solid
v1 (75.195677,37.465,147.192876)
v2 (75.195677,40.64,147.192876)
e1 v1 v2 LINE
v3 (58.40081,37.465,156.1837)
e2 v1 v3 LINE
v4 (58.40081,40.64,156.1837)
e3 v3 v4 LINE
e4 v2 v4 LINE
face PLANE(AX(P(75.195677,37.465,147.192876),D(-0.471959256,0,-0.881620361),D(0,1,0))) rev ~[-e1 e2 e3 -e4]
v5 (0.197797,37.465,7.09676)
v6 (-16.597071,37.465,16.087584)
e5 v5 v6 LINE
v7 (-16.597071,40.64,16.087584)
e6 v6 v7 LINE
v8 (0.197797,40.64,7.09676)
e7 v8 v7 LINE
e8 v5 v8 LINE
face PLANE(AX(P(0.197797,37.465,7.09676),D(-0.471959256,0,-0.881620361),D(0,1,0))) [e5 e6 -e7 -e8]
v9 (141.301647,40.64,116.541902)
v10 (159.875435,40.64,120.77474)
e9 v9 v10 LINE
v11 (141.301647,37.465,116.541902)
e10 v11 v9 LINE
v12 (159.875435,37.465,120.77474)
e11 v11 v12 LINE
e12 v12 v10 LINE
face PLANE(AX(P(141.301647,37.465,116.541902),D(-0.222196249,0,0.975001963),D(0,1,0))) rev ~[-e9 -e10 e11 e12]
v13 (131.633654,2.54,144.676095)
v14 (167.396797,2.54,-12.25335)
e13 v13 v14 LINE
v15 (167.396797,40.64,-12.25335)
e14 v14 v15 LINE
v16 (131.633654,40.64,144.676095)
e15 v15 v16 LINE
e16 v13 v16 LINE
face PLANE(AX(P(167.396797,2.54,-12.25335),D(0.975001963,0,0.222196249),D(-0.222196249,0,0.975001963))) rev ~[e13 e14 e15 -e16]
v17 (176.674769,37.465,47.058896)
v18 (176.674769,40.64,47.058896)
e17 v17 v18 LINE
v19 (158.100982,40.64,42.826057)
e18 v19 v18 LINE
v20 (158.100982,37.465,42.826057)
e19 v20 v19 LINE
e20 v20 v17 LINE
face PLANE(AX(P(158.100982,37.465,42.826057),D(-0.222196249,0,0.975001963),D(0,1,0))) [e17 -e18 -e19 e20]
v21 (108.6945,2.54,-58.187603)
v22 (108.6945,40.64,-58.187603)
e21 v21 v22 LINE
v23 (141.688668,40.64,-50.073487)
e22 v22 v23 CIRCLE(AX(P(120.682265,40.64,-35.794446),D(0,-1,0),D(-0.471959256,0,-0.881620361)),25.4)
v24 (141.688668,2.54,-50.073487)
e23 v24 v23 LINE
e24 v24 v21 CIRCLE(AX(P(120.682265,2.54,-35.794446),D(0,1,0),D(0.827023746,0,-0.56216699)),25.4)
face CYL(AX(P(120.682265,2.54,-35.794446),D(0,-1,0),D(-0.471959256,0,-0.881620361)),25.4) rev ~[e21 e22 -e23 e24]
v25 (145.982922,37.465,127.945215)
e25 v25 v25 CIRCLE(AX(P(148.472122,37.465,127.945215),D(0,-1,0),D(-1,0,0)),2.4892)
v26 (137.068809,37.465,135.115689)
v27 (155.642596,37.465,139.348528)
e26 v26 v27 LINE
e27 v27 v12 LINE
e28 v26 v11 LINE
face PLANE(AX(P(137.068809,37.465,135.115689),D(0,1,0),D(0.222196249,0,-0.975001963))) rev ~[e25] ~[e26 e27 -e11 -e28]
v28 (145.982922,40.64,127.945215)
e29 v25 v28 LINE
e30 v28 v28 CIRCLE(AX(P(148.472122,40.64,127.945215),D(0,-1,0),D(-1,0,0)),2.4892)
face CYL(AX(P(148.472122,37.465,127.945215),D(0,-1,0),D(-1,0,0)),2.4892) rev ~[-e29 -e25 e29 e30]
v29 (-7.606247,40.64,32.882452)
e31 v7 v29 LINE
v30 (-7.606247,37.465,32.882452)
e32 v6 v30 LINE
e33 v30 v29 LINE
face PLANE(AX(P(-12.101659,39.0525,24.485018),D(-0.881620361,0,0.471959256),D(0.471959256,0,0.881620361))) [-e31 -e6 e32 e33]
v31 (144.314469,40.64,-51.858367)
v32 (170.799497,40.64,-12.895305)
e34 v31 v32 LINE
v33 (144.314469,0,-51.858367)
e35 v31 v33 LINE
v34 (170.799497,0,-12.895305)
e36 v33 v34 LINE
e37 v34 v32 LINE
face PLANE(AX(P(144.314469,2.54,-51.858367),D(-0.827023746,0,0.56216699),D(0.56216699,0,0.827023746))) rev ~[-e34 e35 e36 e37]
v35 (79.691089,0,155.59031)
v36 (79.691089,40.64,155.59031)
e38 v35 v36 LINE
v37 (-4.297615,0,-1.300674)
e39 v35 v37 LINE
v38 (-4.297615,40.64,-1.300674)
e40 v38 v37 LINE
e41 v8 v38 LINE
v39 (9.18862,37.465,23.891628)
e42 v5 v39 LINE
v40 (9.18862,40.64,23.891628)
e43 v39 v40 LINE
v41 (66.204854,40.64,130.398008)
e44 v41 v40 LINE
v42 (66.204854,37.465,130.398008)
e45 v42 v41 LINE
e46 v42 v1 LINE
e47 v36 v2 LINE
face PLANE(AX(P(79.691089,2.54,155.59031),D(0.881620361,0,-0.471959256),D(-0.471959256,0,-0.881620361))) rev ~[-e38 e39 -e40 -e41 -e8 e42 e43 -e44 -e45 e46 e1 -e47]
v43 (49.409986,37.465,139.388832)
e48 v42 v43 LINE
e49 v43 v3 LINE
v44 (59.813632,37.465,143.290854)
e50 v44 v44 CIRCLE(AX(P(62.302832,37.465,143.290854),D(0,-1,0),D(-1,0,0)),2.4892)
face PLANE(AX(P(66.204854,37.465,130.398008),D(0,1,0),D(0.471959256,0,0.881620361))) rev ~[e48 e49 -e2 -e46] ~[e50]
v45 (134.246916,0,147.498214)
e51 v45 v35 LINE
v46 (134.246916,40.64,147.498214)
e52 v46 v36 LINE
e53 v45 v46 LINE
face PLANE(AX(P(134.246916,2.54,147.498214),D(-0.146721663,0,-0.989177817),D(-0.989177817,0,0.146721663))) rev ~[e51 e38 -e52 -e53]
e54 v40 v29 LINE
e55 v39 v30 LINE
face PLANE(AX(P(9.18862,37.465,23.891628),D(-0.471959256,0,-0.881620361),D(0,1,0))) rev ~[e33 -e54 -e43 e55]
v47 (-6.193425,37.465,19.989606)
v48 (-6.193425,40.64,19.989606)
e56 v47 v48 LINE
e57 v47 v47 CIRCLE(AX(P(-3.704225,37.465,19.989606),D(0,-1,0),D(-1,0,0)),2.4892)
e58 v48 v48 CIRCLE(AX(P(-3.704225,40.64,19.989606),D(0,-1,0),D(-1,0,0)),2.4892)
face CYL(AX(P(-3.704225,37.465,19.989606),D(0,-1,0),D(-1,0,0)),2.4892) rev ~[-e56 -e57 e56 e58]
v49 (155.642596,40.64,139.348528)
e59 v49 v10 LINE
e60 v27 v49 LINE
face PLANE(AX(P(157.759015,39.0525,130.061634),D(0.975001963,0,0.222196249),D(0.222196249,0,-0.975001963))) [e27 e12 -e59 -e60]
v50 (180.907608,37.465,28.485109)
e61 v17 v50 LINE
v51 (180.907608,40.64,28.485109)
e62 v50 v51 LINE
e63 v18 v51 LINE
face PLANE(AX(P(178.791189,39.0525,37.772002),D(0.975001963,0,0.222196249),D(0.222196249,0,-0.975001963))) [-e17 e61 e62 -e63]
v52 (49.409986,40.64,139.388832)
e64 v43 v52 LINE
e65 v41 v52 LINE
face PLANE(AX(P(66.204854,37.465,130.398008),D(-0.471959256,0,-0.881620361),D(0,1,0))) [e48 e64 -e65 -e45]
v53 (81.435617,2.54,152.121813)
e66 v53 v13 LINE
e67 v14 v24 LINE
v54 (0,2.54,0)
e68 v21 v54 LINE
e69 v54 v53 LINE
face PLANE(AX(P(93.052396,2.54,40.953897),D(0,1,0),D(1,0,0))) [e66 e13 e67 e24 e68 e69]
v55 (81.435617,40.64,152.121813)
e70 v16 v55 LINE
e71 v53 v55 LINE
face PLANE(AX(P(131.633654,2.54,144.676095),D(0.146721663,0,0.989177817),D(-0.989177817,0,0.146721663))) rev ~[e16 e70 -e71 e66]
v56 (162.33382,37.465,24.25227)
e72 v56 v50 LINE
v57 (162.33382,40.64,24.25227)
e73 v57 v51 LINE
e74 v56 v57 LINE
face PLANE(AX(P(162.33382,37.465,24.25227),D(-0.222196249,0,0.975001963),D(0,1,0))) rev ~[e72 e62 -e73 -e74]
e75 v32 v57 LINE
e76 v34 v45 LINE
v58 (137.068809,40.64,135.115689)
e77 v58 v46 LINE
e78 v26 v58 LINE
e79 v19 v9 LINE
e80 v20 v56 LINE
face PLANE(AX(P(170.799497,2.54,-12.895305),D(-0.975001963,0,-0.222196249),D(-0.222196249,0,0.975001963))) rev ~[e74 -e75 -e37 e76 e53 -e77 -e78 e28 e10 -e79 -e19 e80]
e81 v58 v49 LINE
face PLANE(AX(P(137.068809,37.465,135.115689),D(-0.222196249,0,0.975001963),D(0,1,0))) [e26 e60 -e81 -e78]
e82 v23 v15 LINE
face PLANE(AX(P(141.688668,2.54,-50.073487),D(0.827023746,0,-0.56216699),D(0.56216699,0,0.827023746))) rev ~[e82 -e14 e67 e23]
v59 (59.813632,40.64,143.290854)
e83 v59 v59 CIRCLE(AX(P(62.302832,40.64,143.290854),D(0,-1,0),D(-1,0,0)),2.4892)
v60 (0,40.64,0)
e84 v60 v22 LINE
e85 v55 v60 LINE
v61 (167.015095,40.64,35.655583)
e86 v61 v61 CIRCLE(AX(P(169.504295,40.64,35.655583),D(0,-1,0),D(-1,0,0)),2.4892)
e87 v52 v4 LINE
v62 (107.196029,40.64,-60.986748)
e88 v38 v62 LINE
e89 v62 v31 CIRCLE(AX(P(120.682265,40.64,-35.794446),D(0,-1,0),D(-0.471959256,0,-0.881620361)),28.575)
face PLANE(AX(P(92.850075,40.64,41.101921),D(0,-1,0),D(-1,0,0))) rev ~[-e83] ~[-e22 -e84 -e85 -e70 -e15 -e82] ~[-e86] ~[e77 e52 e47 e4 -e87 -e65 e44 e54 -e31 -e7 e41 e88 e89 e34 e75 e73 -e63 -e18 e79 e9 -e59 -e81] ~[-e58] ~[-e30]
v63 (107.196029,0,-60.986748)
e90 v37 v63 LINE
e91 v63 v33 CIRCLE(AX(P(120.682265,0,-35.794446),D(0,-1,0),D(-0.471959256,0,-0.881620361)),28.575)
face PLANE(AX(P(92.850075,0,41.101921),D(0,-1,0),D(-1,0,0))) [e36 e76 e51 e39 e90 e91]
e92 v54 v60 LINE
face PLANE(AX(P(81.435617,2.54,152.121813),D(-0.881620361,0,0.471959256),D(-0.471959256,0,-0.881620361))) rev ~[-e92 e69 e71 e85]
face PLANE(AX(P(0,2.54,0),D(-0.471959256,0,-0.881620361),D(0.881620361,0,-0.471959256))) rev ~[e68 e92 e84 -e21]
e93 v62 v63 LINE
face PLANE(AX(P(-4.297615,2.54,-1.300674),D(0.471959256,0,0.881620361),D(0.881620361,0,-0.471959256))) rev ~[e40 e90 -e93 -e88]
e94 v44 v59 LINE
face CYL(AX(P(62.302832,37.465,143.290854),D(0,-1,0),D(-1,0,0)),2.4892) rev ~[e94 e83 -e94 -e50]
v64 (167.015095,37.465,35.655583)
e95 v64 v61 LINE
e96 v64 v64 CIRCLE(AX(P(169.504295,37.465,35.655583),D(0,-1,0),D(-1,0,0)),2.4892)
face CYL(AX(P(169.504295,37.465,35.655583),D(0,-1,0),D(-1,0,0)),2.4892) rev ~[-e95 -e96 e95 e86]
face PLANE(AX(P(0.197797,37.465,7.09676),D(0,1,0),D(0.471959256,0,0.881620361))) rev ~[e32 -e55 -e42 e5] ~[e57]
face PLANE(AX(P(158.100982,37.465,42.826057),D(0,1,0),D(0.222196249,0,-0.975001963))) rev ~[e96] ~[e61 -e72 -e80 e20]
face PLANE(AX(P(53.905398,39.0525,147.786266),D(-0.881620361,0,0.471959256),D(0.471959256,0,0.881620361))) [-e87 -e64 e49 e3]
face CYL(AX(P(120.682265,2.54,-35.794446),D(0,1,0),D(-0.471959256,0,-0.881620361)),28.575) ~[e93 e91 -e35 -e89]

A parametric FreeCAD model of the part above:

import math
import FreeCAD as App
import Part
import Sketcher
Q = App.Units.Quantity


def add_polygon(sketch, points):
    """Adds a closed chain of lines whose ends are joined by coincident constraints."""
    first, n = sketch.GeometryCount, len(points)
    for a, b in zip(points, points[1:] + points[:1]):
        sketch.addGeometry(Part.LineSegment(App.Vector(*a, 0), App.Vector(*b, 0)), False)
    for i in range(n):
        sketch.addConstraint(Sketcher.Constraint("Coincident", first + i, 2, first + (i + 1) % n, 1))

doc = App.newDocument("Part")
body = doc.addObject("PartDesign::Body", "Body")

sketch1 = doc.addObject("Sketcher::SketchObject", "Sketch")
body.addObject(sketch1)
sketch1.AttachmentSupport = (doc.XZ_Plane, [""])
sketch1.MapMode = "FlatFace"
sketch1.addGeometry([
    Part.LineSegment(App.Vector(108.6945, -58.187603, 0), App.Vector(0, 0, 0)),
    Part.LineSegment(App.Vector(0, 0, 0), App.Vector(81.435617, 152.121813, 0)),
    Part.LineSegment(App.Vector(81.435617, 152.121813, 0), App.Vector(131.633654, 144.676095, 0)),
    Part.LineSegment(App.Vector(131.633654, 144.676095, 0), App.Vector(167.396797, -12.25335, 0)),
    Part.LineSegment(App.Vector(167.396797, -12.25335, 0), App.Vector(141.688668, -50.073487, 0)),
    Part.ArcOfCircle(Part.Circle(App.Vector(120.682265, -35.794446, 0), App.Vector(0, 0, 1), 25.4), math.radians(-118.161551), math.radians(-34.205792)),
], False)
sketch1.addConstraint([
    Sketcher.Constraint("Coincident", 0, 2, 1, 1),
    Sketcher.Constraint("Coincident", 1, 2, 2, 1),
    Sketcher.Constraint("Coincident", 2, 2, 3, 1),
    Sketcher.Constraint("Coincident", 3, 2, 4, 1),
    Sketcher.Constraint("Tangent", 4, 2, 5, 2),
    Sketcher.Constraint("Tangent", 5, 1, 0, 1),
    Sketcher.Constraint("Coincident", 0, 2, -1, 1),
    Sketcher.Constraint("Perpendicular", 0, 1),
    Sketcher.Constraint("Radius", 5, Q("1 in")),
    Sketcher.Constraint("DistanceX", -1, 1, 5, 1, 108.6945),
    Sketcher.Constraint("DistanceY", 4, 2, 1, 2, 202.195301),
    Sketcher.Constraint("Distance", 1, 172.547981),
    Sketcher.Constraint("DistanceY", 3, 2, -1, 1, 12.25335),
    Sketcher.Constraint("DistanceX", -1, 1, 4, 2, 141.688668),
    Sketcher.Constraint("DistanceY", 2, 2, 1, 2, 7.445718),
    Sketcher.Constraint("DistanceX", 5, 3, 2, 2, 10.951389),
])
pad1 = doc.addObject("PartDesign::Pad", "Pad")
body.addObject(pad1)
pad1.Profile = sketch1
pad1.Length = Q("0.1 in")
pad1.Reversed = True

sketch2 = doc.addObject("Sketcher::SketchObject", "Sketch001")
body.addObject(sketch2)
sketch2.AttachmentSupport = (doc.XZ_Plane, [""])
sketch2.MapMode = "FlatFace"
sketch2.AttachmentOffset = App.Placement(App.Vector(0, 0, -0.1 * 25.4), App.Rotation())
sketch2.addGeometry([
    Part.LineSegment(App.Vector(-4.297615, -1.300674, 0), App.Vector(79.691089, 155.59031, 0)),
    Part.LineSegment(App.Vector(79.691089, 155.59031, 0), App.Vector(134.246916, 147.498214, 0)),
    Part.LineSegment(App.Vector(134.246916, 147.498214, 0), App.Vector(170.799497, -12.895305, 0)),
    Part.LineSegment(App.Vector(170.799497, -12.895305, 0), App.Vector(144.314469, -51.858367, 0)),
    Part.ArcOfCircle(Part.Circle(App.Vector(120.682265, -35.794446, 0), App.Vector(0, 0, 1), 28.575), math.radians(-118.161551), math.radians(-34.205792)),
    Part.LineSegment(App.Vector(107.196029, -60.986748, 0), App.Vector(-4.297615, -1.300674, 0)),
    Part.LineSegment(App.Vector(81.435617, 152.121813, 0), App.Vector(0, 0, 0)),
    Part.LineSegment(App.Vector(0, 0, 0), App.Vector(108.6945, -58.187603, 0)),
    Part.ArcOfCircle(Part.Circle(App.Vector(120.682265, -35.794446, 0), App.Vector(0, 0, 1), 25.4), math.radians(-118.161551), math.radians(-34.205792)),
    Part.LineSegment(App.Vector(141.688668, -50.073487, 0), App.Vector(167.396797, -12.25335, 0)),
    Part.LineSegment(App.Vector(167.396797, -12.25335, 0), App.Vector(131.633654, 144.676095, 0)),
    Part.LineSegment(App.Vector(131.633654, 144.676095, 0), App.Vector(81.435617, 152.121813, 0)),
], False)
sketch2.addConstraint([
    Sketcher.Constraint("Coincident", 0, 2, 1, 1),
    Sketcher.Constraint("Coincident", 1, 2, 2, 1),
    Sketcher.Constraint("Coincident", 2, 2, 3, 1),
    Sketcher.Constraint("Tangent", 3, 2, 4, 2),
    Sketcher.Constraint("Tangent", 4, 1, 5, 1),
    Sketcher.Constraint("Coincident", 5, 2, 0, 1),
    Sketcher.Constraint("Coincident", 6, 2, 7, 1),
    Sketcher.Constraint("Tangent", 7, 2, 8, 1),
    Sketcher.Constraint("Tangent", 8, 2, 9, 1),
    Sketcher.Constraint("Coincident", 9, 2, 10, 1),
    Sketcher.Constraint("Coincident", 10, 2, 11, 1),
    Sketcher.Constraint("Coincident", 11, 2, 6, 1),
    Sketcher.Constraint("Coincident", 6, 2, -1, 1),
    Sketcher.Constraint("Coincident", 8, 3, 4, 3),
    Sketcher.Constraint("Perpendicular", 0, 5),
    Sketcher.Constraint("Perpendicular", 5, 6),
    Sketcher.Constraint("Perpendicular", 6, 7),
    Sketcher.Constraint("Parallel", 3, 9),
    Sketcher.Constraint("Parallel", 2, 10),
    Sketcher.Constraint("Parallel", 1, 11),
    Sketcher.Constraint("Radius", 8, Q("1 in")),
    Sketcher.Constraint("Radius", 4, Q("1.125 in")),
    Sketcher.Constraint("Distance", 1, 55.1527),
    Sketcher.Constraint("DistanceX", -1, 1, 7, 2, 108.6945),
    Sketcher.Constraint("DistanceY", 4, 1, 4, 3, 25.192302),
    Sketcher.Constraint("DistanceY", 7, 2, 2, 2, 45.292298),
    Sketcher.Constraint("DistanceX", 9, 2, 2, 2, 3.402701),
    Sketcher.Constraint("DistanceY", 2, 2, 10, 2, 157.5714),
    Sketcher.Constraint("DistanceX", 11, 2, 1, 2, 52.8113),
    Sketcher.Constraint("DistanceY", 1, 2, 11, 2, 4.623599),
    Sketcher.Constraint("Distance", 6, 172.547981),
    Sketcher.Constraint("DistanceY", -1, 1, 0, 2, 155.59031),
])
pad2 = doc.addObject("PartDesign::Pad", "Pad001")
body.addObject(pad2)
pad2.Profile = sketch2
pad2.Type = "TwoLengths"
pad2.Length = Q("1.5 in")
pad2.Length2 = Q("0.1 in")
pad2.Reversed = True

sketch3 = doc.addObject("Sketcher::SketchObject", "Sketch002")
body.addObject(sketch3)
sketch3.Placement = App.Placement(App.Vector(159.573264, 0, 36.365651), App.Rotation(App.Vector(0.222196249, 0, -0.975001963), App.Vector(0, 1.000000001, 0), App.Vector(0.975001963, 0, 0.222196249), "ZXY"))
add_polygon(sketch3, [(-6.626045, 40.64), (-6.626045, 37.465), (12.423955, 37.465), (12.423955, 40.64)])
add_polygon(sketch3, [(-101.281887, 40.64), (-101.281887, 37.465), (-82.231887, 37.465), (-82.231887, 40.64)])
sketch3.addConstraint([
    Sketcher.Constraint("Vertical", 0),
    Sketcher.Constraint("Horizontal", 1),
    Sketcher.Constraint("Vertical", 2),
    Sketcher.Constraint("Horizontal", 3),
    Sketcher.Constraint("Vertical", 4),
    Sketcher.Constraint("Horizontal", 5),
    Sketcher.Constraint("Vertical", 6),
    Sketcher.Constraint("Horizontal", 7),
    Sketcher.Constraint("Horizontal", 1, 2, 4, 2),
    Sketcher.Constraint("Horizontal", 3, 2, 6, 2),
    Sketcher.Constraint("Equal", 3, 5),
    Sketcher.Constraint("DistanceX", 1, 1, 1, 2, Q("0.75 in")),
    Sketcher.Constraint("DistanceY", -1, 1, 2, 2, Q("1.6 in")),
    Sketcher.Constraint("DistanceY", 0, 2, 0, 1, Q("0.125 in")),
    Sketcher.Constraint("DistanceX", 0, 2, -1, 1, 6.626045),
    Sketcher.Constraint("DistanceX", 4, 2, -1, 1, 101.281887),
])
pad3 = doc.addObject("PartDesign::Pad", "Pad002")
body.addObject(pad3)
pad3.Profile = sketch3
pad3.Length = Q("0.75 in")

sketch4 = doc.addObject("Sketcher::SketchObject", "Sketch003")
body.addObject(sketch4)
sketch4.Placement = App.Placement(App.Vector(-2.799145, 0, 1.498471), App.Rotation(App.Vector(0.471959256, 0, 0.881620361), App.Vector(0, 1, 0), App.Vector(-0.881620361, 0, 0.471959256), "ZXY"))
add_polygon(sketch4, [(6.35, 40.64), (6.35, 37.465), (25.4, 37.465), (25.4, 40.64)])
add_polygon(sketch4, [(146.207533, 40.64), (146.207533, 37.465), (165.257533, 37.465), (165.257533, 40.64)])
sketch4.addConstraint([
    Sketcher.Constraint("Vertical", 0),
    Sketcher.Constraint("Horizontal", 1),
    Sketcher.Constraint("Vertical", 2),
    Sketcher.Constraint("Horizontal", 3),
    Sketcher.Constraint("Vertical", 4),
    Sketcher.Constraint("Horizontal", 5),
    Sketcher.Constraint("Vertical", 6),
    Sketcher.Constraint("Horizontal", 7),
    Sketcher.Constraint("Horizontal", 1, 2, 4, 2),
    Sketcher.Constraint("Horizontal", 3, 2, 6, 2),
    Sketcher.Constraint("Equal", 3, 5),
    Sketcher.Constraint("DistanceX", -1, 1, 1, 2, Q("1 in")),
    Sketcher.Constraint("DistanceX", 1, 1, 1, 2, Q("0.75 in")),
    Sketcher.Constraint("DistanceY", -1, 1, 2, 2, Q("1.6 in")),
    Sketcher.Constraint("DistanceY", 0, 2, 0, 1, Q("0.125 in")),
    Sketcher.Constraint("DistanceX", -1, 1, 4, 2, 146.207533),
])
pad4 = doc.addObject("PartDesign::Pad", "Pad003")
body.addObject(pad4)
pad4.Profile = sketch4
pad4.Length = Q("0.75 in")

sketch5 = doc.addObject("Sketcher::SketchObject", "Sketch004")
body.addObject(sketch5)
sketch5.AttachmentSupport = (doc.XZ_Plane, [""])
sketch5.MapMode = "FlatFace"
sketch5.AttachmentOffset = App.Placement(App.Vector(0, 0, -1.475 * 25.4), App.Rotation())
sketch5.addGeometry(Part.Circle(App.Vector(-3.704225, 19.989606, 0), App.Vector(0, 0, 1), 2.4892), False)
sketch5.addConstraint([
    Sketcher.Constraint("Diameter", 0, Q("0.196 in")),
    Sketcher.Constraint("DistanceX", 0, 3, -1, 1, 3.704225),
    Sketcher.Constraint("DistanceY", -1, 1, 0, 3, 19.989606),
])
pocket1 = doc.addObject("PartDesign::Pocket", "Pocket")
body.addObject(pocket1)
pocket1.Profile = sketch5
pocket1.Type = "UpToFirst"

sketch6 = doc.addObject("Sketcher::SketchObject", "Sketch005")
body.addObject(sketch6)
sketch6.AttachmentSupport = (doc.XZ_Plane, [""])
sketch6.MapMode = "FlatFace"
sketch6.AttachmentOffset = App.Placement(App.Vector(0, 0, -1.475 * 25.4), App.Rotation())
sketch6.addGeometry(Part.Circle(App.Vector(62.302832, 143.290854, 0), App.Vector(0, 0, 1), 2.4892), False)
sketch6.addConstraint([
    Sketcher.Constraint("Diameter", 0, Q("0.196 in")),
    Sketcher.Constraint("DistanceX", -1, 1, 0, 3, 62.302832),
    Sketcher.Constraint("DistanceY", -1, 1, 0, 3, 143.290854),
])
pocket2 = doc.addObject("PartDesign::Pocket", "Pocket001")
body.addObject(pocket2)
pocket2.Profile = sketch6
pocket2.Type = "UpToFirst"

sketch7 = doc.addObject("Sketcher::SketchObject", "Sketch006")
body.addObject(sketch7)
sketch7.AttachmentSupport = (doc.XZ_Plane, [""])
sketch7.MapMode = "FlatFace"
sketch7.AttachmentOffset = App.Placement(App.Vector(0, 0, -1.475 * 25.4), App.Rotation())
sketch7.addGeometry(Part.Circle(App.Vector(148.472122, 127.945215, 0), App.Vector(0, 0, 1), 2.4892), False)
sketch7.addConstraint([
    Sketcher.Constraint("Diameter", 0, Q("0.196 in")),
    Sketcher.Constraint("DistanceX", -1, 1, 0, 3, 148.472122),
    Sketcher.Constraint("DistanceY", -1, 1, 0, 3, 127.945215),
])
pocket3 = doc.addObject("PartDesign::Pocket", "Pocket002")
body.addObject(pocket3)
pocket3.Profile = sketch7
pocket3.Type = "UpToFirst"

sketch8 = doc.addObject("Sketcher::SketchObject", "Sketch007")
body.addObject(sketch8)
sketch8.AttachmentSupport = (doc.XZ_Plane, [""])
sketch8.MapMode = "FlatFace"
sketch8.AttachmentOffset = App.Placement(App.Vector(0, 0, -1.475 * 25.4), App.Rotation())
sketch8.addGeometry(Part.Circle(App.Vector(169.504295, 35.655583, 0), App.Vector(0, 0, 1), 2.4892), False)
sketch8.addConstraint([
    Sketcher.Constraint("Diameter", 0, Q("0.196 in")),
    Sketcher.Constraint("DistanceX", -1, 1, 0, 3, 169.504295),
    Sketcher.Constraint("DistanceY", -1, 1, 0, 3, 35.655583),
])
pocket4 = doc.addObject("PartDesign::Pocket", "Pocket003")
body.addObject(pocket4)
pocket4.Profile = sketch8
pocket4.Type = "UpToFirst"

doc.recompute()
